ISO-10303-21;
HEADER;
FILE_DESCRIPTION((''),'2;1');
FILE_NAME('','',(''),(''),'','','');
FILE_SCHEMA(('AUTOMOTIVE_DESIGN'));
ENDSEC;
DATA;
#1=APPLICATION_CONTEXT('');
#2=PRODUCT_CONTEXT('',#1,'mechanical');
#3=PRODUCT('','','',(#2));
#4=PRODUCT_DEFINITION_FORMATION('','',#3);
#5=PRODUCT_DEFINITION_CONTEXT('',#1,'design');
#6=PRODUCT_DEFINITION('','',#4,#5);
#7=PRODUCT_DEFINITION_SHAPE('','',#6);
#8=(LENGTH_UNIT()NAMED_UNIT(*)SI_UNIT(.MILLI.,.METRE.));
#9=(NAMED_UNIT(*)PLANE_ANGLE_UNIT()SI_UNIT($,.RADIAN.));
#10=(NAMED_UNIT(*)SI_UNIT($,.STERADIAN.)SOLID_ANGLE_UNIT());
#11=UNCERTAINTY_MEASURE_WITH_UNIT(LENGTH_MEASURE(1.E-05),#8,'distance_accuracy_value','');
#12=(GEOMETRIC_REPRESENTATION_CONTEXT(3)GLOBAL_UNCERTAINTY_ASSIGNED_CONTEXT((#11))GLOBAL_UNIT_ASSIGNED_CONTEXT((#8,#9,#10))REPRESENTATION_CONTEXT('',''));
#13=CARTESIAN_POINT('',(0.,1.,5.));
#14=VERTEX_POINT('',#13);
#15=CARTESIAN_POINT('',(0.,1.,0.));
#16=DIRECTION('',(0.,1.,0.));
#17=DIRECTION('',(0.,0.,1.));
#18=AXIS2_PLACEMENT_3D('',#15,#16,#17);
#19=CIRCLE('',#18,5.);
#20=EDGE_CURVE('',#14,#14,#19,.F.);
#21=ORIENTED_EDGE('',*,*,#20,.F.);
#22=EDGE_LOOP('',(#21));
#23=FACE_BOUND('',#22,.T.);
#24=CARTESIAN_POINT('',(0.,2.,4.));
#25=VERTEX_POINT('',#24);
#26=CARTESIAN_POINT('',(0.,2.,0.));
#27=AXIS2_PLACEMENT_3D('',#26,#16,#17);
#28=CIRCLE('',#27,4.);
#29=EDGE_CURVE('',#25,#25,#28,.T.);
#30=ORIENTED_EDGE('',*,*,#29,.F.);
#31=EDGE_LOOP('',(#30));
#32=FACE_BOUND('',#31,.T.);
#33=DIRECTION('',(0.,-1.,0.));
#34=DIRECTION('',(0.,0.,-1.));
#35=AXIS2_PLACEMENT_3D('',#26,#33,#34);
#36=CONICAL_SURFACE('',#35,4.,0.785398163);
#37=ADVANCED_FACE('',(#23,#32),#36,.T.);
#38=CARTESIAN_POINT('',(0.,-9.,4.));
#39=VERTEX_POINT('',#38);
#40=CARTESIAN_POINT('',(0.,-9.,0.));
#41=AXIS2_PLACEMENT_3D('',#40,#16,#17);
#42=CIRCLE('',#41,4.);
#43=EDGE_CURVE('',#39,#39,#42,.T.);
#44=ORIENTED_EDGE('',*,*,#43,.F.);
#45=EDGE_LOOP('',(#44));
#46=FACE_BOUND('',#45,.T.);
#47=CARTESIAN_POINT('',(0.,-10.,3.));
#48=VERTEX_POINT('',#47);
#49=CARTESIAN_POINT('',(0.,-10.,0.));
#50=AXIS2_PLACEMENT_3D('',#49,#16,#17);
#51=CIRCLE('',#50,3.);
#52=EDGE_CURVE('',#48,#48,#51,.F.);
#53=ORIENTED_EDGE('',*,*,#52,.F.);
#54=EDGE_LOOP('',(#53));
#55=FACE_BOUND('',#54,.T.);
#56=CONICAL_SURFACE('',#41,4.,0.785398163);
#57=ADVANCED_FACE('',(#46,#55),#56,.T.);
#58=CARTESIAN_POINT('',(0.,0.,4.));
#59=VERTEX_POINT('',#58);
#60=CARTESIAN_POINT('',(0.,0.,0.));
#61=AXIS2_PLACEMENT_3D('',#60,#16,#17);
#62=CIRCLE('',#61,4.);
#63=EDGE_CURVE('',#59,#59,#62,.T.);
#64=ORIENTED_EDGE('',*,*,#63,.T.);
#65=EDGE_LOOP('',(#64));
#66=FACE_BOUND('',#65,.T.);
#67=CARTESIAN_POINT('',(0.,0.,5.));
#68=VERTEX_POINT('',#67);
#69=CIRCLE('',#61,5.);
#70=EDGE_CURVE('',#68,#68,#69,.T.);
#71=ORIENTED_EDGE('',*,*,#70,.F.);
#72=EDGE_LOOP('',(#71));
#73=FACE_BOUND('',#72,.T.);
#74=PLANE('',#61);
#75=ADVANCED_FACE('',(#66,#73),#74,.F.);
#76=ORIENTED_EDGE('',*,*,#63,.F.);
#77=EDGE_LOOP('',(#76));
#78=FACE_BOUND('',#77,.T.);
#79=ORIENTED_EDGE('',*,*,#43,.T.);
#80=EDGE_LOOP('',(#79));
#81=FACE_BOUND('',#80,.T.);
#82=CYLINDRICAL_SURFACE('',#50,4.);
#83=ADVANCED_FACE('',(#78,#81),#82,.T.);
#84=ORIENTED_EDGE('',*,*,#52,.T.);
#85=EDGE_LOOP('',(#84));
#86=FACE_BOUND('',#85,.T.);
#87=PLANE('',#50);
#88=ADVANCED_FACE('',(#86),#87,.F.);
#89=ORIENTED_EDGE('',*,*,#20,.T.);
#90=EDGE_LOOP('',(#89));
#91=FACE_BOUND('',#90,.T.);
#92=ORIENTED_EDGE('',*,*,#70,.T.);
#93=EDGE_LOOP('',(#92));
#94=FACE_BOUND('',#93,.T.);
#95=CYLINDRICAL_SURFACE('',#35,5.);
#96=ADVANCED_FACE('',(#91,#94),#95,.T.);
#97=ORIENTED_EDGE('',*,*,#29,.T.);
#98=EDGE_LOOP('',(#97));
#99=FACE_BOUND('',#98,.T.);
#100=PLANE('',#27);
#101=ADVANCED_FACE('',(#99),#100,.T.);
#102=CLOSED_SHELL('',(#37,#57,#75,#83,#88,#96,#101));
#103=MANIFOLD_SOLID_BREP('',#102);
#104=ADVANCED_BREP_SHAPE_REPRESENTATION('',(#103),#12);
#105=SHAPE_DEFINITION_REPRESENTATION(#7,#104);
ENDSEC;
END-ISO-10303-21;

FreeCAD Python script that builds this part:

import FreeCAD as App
import Part
import Sketcher


def edges_at(feature, points):
    """Names of the edges that pass closest to the given points."""
    edges = feature.Shape.Edges
    near = lambda p: min(range(len(edges)), key=lambda i: edges[i].distToShape(Part.Vertex(*p))[0])
    return sorted({f"Edge{near(p) + 1}" for p in points})

doc = App.newDocument("Part")
body = doc.addObject("PartDesign::Body", "Body")

sketch1 = body.newObject("Sketcher::SketchObject", "Sketch")
sketch1.AttachmentSupport = (doc.getObject("XZ_Plane"), [""])
sketch1.MapMode = "FlatFace"
sketch1.addGeometry(Part.Circle(App.Vector(0, 0, 0), App.Vector(0, 0, 1), 4), False)
sketch1.addConstraint(Sketcher.Constraint("Coincident", 0, 3, -1, 1))
sketch1.addConstraint(Sketcher.Constraint("Diameter", 0, 8.0))
pad1 = body.newObject("PartDesign::Pad", "Pad")
pad1.Profile = sketch1
pad1.Length = 10

sketch2 = body.newObject("Sketcher::SketchObject", "Sketch001")
sketch2.AttachmentSupport = (doc.getObject("XZ_Plane"), [""])
sketch2.MapMode = "FlatFace"
sketch2.addGeometry(Part.Circle(App.Vector(0, 0, 0), App.Vector(0, 0, 1), 5), False)
sketch2.addConstraint(Sketcher.Constraint("Coincident", 0, 3, -1, 1))
sketch2.addConstraint(Sketcher.Constraint("Diameter", 0, 10.0))
pad2 = body.newObject("PartDesign::Pad", "Pad001")
pad2.Profile = sketch2
pad2.Length = 2
pad2.Reversed = True
doc.recompute()

chamfer = body.newObject("PartDesign::Chamfer", "Chamfer")
chamfer.Base = (pad2, edges_at(pad2, [(0, -10, -4)]))
chamfer.Size = 1
doc.recompute()

chamfer2 = body.newObject("PartDesign::Chamfer", "Chamfer001")
chamfer2.Base = (chamfer, edges_at(chamfer, [(0, 2, -5)]))
chamfer2.Size = 1

doc.recompute()
